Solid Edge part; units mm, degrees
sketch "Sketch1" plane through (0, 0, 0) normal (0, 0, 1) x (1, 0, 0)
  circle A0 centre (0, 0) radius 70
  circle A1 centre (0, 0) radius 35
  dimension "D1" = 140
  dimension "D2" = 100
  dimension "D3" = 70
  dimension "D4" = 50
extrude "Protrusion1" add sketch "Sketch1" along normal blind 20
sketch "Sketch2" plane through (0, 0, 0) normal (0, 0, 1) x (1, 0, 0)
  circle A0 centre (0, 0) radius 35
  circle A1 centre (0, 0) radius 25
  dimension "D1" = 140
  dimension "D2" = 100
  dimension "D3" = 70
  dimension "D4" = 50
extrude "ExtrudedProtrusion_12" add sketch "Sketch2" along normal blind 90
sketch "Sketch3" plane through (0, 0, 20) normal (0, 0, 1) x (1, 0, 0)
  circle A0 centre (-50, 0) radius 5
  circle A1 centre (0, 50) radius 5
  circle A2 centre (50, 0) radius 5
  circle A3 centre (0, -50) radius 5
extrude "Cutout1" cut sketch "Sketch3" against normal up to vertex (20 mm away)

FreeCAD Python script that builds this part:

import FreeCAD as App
import Part
import Sketcher
from FreeCAD import Vector

doc = App.newDocument("Part")
body = doc.addObject("PartDesign::Body", "Body")

# Sketch on XY plane
sketch1 = doc.addObject("Sketcher::SketchObject", "Sketch")
body.addObject(sketch1)
sketch1.AttachmentSupport = (doc.XY_Plane, [""])
sketch1.MapMode = "FlatFace"
sketch1.addGeometry(Part.Circle(Vector(0, 0, 0), Vector(0, 0, 1), 70), False)
sketch1.addGeometry(Part.Circle(Vector(0, 0, 0), Vector(0, 0, 1), 35), False)
sketch1.addConstraint(Sketcher.Constraint("Coincident", 0, 3, -1, 1))
sketch1.addConstraint(Sketcher.Constraint("Coincident", 1, 3, -1, 1))
sketch1.addConstraint(Sketcher.Constraint("Diameter", 0, 140.0))
sketch1.addConstraint(Sketcher.Constraint("Diameter", 1, 70.0))
pad1 = doc.addObject("PartDesign::Pad", "Pad")
body.addObject(pad1)
pad1.Profile = sketch1
pad1.Length = 20

# Sketch on XY plane
sketch2 = doc.addObject("Sketcher::SketchObject", "Sketch001")
body.addObject(sketch2)
sketch2.AttachmentSupport = (doc.XY_Plane, [""])
sketch2.MapMode = "FlatFace"
sketch2.addGeometry(Part.Circle(Vector(0, 0, 0), Vector(0, 0, 1), 35), False)
sketch2.addGeometry(Part.Circle(Vector(0, 0, 0), Vector(0, 0, 1), 25), False)
sketch2.addConstraint(Sketcher.Constraint("Coincident", 0, 3, -1, 1))
sketch2.addConstraint(Sketcher.Constraint("Coincident", 1, 3, -1, 1))
sketch2.addConstraint(Sketcher.Constraint("Diameter", 0, 70.0))
sketch2.addConstraint(Sketcher.Constraint("Diameter", 1, 50.0))
pad2 = doc.addObject("PartDesign::Pad", "Pad001")
body.addObject(pad2)
pad2.Profile = sketch2
pad2.Length = 90

# Sketch on XY plane
sketch3 = doc.addObject("Sketcher::SketchObject", "Sketch002")
body.addObject(sketch3)
sketch3.AttachmentSupport = (doc.XY_Plane, [""])
sketch3.MapMode = "FlatFace"
sketch3.AttachmentOffset = App.Placement(Vector(0, 0, 20), App.Rotation())
sketch3.addGeometry(Part.Circle(Vector(-50, 0, 0), Vector(0, 0, 1), 5), False)
sketch3.addGeometry(Part.Circle(Vector(0, 50, 0), Vector(0, 0, 1), 5), False)
sketch3.addGeometry(Part.Circle(Vector(50, 0, 0), Vector(0, 0, 1), 5), False)
sketch3.addGeometry(Part.Circle(Vector(0, -50, 0), Vector(0, 0, 1), 5), False)
sketch3.addConstraint(Sketcher.Constraint("Equal", 0, 1))
sketch3.addConstraint(Sketcher.Constraint("Equal", 1, 2))
sketch3.addConstraint(Sketcher.Constraint("Equal", 2, 3))
sketch3.addConstraint(Sketcher.Constraint("Symmetric", 0, 3, 2, 3, -1, 1))
sketch3.addConstraint(Sketcher.Constraint("Symmetric", 1, 3, 3, 3, -1, 1))
sketch3.addConstraint(Sketcher.Constraint("PointOnObject", 0, 3, -1))
sketch3.addConstraint(Sketcher.Constraint("PointOnObject", 1, 3, -2))
sketch3.addConstraint(Sketcher.Constraint("Diameter", 0, 10.0))
sketch3.addConstraint(Sketcher.Constraint("DistanceX", 0, 3, -1, 1, 50.0))
sketch3.addConstraint(Sketcher.Constraint("DistanceY", -1, 1, 1, 3, 50.0))
pocket1 = doc.addObject("PartDesign::Pocket", "Pocket")
body.addObject(pocket1)
pocket1.Profile = sketch3
pocket1.Length = 20

doc.recompute()
